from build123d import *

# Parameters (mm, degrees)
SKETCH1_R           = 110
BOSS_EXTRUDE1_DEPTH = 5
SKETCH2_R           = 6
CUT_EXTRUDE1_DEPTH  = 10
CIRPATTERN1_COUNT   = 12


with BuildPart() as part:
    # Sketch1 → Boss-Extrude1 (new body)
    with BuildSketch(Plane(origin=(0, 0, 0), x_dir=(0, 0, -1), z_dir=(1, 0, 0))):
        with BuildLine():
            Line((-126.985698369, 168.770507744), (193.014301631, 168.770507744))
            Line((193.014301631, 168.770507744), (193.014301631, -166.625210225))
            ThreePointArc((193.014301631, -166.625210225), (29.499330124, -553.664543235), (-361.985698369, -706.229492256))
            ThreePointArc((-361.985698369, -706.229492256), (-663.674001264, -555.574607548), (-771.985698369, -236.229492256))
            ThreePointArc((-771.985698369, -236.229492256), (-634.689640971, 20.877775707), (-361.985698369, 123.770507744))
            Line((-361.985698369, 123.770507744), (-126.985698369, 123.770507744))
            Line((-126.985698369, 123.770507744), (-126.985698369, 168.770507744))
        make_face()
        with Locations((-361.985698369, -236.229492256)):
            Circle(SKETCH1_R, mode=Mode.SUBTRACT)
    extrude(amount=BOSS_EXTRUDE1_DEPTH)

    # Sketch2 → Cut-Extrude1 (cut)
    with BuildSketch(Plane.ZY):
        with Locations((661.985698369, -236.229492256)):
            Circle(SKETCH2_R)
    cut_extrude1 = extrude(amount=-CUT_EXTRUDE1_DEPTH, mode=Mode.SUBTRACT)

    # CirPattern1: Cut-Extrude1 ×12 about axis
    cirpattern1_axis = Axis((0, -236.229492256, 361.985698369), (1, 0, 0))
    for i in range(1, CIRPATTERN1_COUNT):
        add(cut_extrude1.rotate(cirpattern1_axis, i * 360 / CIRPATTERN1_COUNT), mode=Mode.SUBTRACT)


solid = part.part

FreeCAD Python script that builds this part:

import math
import FreeCAD as App
import Part
import Sketcher

V = App.Vector
Q = App.Units.Quantity

doc = App.newDocument("Part")
params = doc.addObject("Spreadsheet::Sheet", "Params")
for row, (alias, value) in enumerate([
    ("sketch1_diameter", "220 mm"),
    ("sketch1_width", "45 mm"),
    ("sketch1_height", "320 mm"),
    ("sketch1_height2", "235 mm"),
    ("pad1_length", "5 mm"),
    ("sketch2_diameter", "12 mm"),
    ("pocket1_length", "10 mm"),
], start=1):
    params.set(f"A{row}", alias)
    params.set(f"B{row}", "=" + value)
    params.setAlias(f"B{row}", alias)

body = doc.addObject("PartDesign::Body", "Body")

# Sketch on YZ plane
sketch1 = body.newObject("Sketcher::SketchObject", "Sketch")
sketch1.AttachmentSupport = (doc.getObject("YZ_Plane"), [""])
sketch1.MapMode = "FlatFace"
sketch1.addGeometry([
    Part.LineSegment(V(169, -193, 0), V(169, 127, 0)),  # 0
    Part.LineSegment(V(169, 127, 0), V(124, 127, 0)),  # 1
    Part.LineSegment(V(124, 127, 0), V(124, 362, 0)),  # 2
    Part.ArcOfCircle(Part.Circle(V(-290, 362, 0), V(0, 0, 1), 414), math.radians(0), math.radians(83)),  # 3
    Part.ArcOfCircle(Part.Circle(V(-264, 330, 0), V(0, 0, 1), 443), math.radians(86), math.radians(176)),  # 4
    Part.ArcOfCircle(Part.Circle(V(-167, 347, 0), V(0, 0, 1), 540), math.radians(178), math.radians(270)),  # 5
    Part.LineSegment(V(-167, -193, 0), V(169, -193, 0)),  # 6
    Part.Circle(V(-236, 362, 0), V(0, 0, 1), 110),  # 7
], False)
sketch1.addConstraint([
    Sketcher.Constraint("Coincident", 0, 2, 1, 1),
    Sketcher.Constraint("Coincident", 1, 2, 2, 1),
    Sketcher.Constraint("Coincident", 2, 2, 3, 1),
    Sketcher.Constraint("Coincident", 3, 2, 4, 1),
    Sketcher.Constraint("Coincident", 4, 2, 5, 1),
    Sketcher.Constraint("Tangent", 5, 2, 6, 1),
    Sketcher.Constraint("Coincident", 6, 2, 0, 1),
    Sketcher.Constraint("Vertical", 0),
    Sketcher.Constraint("Horizontal", 1),
    Sketcher.Constraint("Vertical", 2),
    Sketcher.Constraint("Horizontal", 6),
    Sketcher.Constraint("Horizontal", 7, 3, 2, 2),
    Sketcher.Constraint("Horizontal", 2, 2, 4, 2),
    Sketcher.Constraint("Vertical", 7, 3, 3, 2),
    Sketcher.Constraint("Diameter", 7, Q("220 mm")),
    Sketcher.Constraint("DistanceX", 1, 2, 1, 1, Q("45 mm")),
    Sketcher.Constraint("DistanceY", 0, 1, 0, 2, Q("320 mm")),
    Sketcher.Constraint("DistanceY", 2, 1, 2, 2, Q("235 mm")),
    Sketcher.Constraint("DistanceX", 7, 3, 0, 2, Q("405 mm")),
    Sketcher.Constraint("DistanceY", 7, 3, 3, 2, Q("410 mm")),
    Sketcher.Constraint("DistanceX", 4, 2, 7, 3, Q("470 mm")),
    Sketcher.Constraint("Radius", 5, Q("539.817821 mm")),
    Sketcher.Constraint("Radius", 3, Q("413.956564 mm")),
    Sketcher.Constraint("Radius", 4, Q("443.126984 mm")),
    Sketcher.Constraint("DistanceY", -1, 1, 7, 3, Q("361.985698 mm")),
    Sketcher.Constraint("DistanceX", 5, 3, -1, 1, Q("166.62521 mm")),
])
sketch1.setExpression("Constraints[14]", "Params.sketch1_diameter")
sketch1.setExpression("Constraints[15]", "Params.sketch1_width")
sketch1.setExpression("Constraints[16]", "Params.sketch1_height")
sketch1.setExpression("Constraints[17]", "Params.sketch1_height2")
pad1 = body.newObject("PartDesign::Pad", "Pad")
pad1.Profile = sketch1
pad1.setExpression("Length", "Params.pad1_length")

# Sketch on YZ plane
sketch2 = body.newObject("Sketcher::SketchObject", "Sketch001")
sketch2.AttachmentSupport = (doc.getObject("YZ_Plane"), [""])
sketch2.MapMode = "FlatFace"
sketch2.addGeometry(Part.Circle(V(-236, 662, 0), V(0, 0, 1), 6), False)
sketch2.addConstraint([
    Sketcher.Constraint("Diameter", 0, Q("12 mm")),
    Sketcher.Constraint("DistanceY", -1, 1, 0, 3, Q("661.985698 mm")),
    Sketcher.Constraint("DistanceX", 0, 3, -1, 1, Q("236.229492 mm")),
])
sketch2.setExpression("Constraints[0]", "Params.sketch2_diameter")
pocket1 = body.newObject("PartDesign::Pocket", "Pocket")
pocket1.Profile = sketch2
pocket1.setExpression("Length", "Params.pocket1_length")
pocket1.Reversed = True
doc.recompute()

datumline = body.newObject("PartDesign::Line", "DatumLine")
datumline.Placement = App.Placement(V(0, -236.229492, 361.985698), App.Rotation(V(0, 0, 1), V(1, 0, 0)))
polarpattern = body.newObject("PartDesign::PolarPattern", "PolarPattern")
polarpattern.Originals = [pocket1]
polarpattern.Axis = (datumline, [""])
polarpattern.Angle = 360
polarpattern.Occurrences = 12
body.Tip = polarpattern

doc.recompute()
